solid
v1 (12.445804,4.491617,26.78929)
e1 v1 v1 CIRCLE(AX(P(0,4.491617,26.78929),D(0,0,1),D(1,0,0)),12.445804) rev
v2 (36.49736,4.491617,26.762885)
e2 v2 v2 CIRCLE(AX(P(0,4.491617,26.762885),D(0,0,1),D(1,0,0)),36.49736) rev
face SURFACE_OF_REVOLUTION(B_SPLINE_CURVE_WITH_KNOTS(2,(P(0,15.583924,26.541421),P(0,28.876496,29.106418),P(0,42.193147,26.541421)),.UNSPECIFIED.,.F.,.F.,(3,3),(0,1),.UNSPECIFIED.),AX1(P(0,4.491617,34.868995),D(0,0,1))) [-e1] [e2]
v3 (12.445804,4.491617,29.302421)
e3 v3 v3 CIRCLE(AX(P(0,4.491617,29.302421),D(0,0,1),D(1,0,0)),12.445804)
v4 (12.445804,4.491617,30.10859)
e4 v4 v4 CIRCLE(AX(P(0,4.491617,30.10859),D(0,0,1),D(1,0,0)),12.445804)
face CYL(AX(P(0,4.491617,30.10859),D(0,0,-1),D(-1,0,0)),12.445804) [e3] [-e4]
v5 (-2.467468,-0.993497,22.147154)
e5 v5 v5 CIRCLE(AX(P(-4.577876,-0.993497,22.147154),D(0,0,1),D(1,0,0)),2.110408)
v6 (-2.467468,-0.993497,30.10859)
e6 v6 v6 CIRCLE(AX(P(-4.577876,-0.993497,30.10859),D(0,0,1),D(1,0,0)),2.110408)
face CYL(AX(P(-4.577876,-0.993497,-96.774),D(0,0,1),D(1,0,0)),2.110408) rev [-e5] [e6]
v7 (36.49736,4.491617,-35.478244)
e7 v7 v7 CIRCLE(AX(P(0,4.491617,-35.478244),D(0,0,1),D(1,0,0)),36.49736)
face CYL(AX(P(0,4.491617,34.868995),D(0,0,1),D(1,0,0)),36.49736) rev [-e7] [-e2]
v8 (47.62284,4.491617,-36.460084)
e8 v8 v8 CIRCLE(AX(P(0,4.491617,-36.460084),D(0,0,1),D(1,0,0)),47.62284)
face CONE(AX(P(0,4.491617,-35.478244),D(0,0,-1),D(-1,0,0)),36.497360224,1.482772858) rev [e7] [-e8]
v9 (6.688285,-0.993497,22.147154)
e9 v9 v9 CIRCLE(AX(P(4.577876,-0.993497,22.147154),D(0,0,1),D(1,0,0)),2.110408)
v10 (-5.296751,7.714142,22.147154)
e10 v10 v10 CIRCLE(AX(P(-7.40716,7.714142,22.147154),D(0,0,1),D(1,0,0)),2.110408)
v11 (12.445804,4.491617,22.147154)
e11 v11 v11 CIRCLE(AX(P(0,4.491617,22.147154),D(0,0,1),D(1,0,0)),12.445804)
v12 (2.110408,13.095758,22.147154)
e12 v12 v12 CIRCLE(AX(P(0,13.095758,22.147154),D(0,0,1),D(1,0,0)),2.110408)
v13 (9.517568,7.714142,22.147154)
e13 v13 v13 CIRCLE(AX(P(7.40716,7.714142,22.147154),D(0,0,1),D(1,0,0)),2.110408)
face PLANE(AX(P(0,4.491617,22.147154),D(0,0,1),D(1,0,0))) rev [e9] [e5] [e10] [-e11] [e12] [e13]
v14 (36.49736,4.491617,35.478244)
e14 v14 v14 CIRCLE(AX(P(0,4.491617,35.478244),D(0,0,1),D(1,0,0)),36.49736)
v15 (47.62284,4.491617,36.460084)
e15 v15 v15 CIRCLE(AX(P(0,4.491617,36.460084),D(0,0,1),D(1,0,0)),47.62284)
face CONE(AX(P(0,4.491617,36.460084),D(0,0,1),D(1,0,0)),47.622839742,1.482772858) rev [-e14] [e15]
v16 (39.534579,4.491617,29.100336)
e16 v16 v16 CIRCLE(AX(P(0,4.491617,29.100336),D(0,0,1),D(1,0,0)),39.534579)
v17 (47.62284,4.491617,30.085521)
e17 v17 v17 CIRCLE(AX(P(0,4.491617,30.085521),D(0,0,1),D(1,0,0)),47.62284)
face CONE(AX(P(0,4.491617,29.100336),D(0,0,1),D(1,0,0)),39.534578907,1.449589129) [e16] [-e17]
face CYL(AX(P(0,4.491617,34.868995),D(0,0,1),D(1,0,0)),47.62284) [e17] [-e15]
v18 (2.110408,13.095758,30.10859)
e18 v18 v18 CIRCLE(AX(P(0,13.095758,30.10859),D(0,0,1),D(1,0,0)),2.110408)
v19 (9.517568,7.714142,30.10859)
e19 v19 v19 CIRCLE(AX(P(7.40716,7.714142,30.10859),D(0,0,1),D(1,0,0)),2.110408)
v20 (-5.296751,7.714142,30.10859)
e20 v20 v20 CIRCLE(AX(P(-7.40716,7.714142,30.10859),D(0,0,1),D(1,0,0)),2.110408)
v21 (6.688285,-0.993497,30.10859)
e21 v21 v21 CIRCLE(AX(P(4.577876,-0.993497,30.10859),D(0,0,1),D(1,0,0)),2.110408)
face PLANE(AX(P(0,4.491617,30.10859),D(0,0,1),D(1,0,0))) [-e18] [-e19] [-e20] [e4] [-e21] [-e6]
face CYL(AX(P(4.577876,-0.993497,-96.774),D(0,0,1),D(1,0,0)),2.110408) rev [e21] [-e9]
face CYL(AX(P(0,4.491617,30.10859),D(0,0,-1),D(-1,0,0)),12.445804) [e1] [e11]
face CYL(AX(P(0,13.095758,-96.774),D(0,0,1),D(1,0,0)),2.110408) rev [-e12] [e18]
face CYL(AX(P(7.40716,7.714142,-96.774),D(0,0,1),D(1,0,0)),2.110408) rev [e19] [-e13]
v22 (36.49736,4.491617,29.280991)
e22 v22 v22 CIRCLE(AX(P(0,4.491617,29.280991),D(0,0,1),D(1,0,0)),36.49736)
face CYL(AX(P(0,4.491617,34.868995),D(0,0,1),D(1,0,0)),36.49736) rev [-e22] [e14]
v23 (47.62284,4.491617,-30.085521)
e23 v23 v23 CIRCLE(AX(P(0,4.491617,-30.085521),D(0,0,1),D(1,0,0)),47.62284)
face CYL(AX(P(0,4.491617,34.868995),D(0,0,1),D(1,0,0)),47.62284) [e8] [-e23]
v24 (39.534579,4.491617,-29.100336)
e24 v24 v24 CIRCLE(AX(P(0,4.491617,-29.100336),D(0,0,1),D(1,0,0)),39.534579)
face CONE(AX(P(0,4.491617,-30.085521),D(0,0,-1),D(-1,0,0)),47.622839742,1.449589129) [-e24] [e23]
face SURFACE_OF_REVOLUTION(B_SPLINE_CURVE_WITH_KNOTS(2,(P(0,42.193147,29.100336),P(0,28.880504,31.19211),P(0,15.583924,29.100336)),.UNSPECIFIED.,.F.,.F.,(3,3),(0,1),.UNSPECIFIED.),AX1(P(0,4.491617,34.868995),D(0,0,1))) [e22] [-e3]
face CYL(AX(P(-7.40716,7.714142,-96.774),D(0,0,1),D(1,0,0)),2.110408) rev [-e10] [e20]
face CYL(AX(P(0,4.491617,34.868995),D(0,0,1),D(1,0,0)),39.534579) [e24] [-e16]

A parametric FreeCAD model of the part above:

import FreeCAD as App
import Part
import Sketcher
Q = App.Units.Quantity


def add_polygon(sketch, points):
    """Adds a closed chain of lines whose ends are joined by coincident constraints."""
    first, n = sketch.GeometryCount, len(points)
    for a, b in zip(points, points[1:] + points[:1]):
        sketch.addGeometry(Part.LineSegment(App.Vector(*a, 0), App.Vector(*b, 0)), False)
    for i in range(n):
        sketch.addConstraint(Sketcher.Constraint("Coincident", first + i, 2, first + (i + 1) % n, 1))

doc = App.newDocument("Part")
params = doc.addObject("Spreadsheet::Sheet", "Params")
for row, (alias, value) in enumerate([
    ("revolution_angle", "360 deg"),
    ("pad1_length", "7.961436 mm"),
    ("pocket1_length", "5.41 in"),
    ("revolution2_angle", "360 deg"),
], start=1):
    params.set(f"A{row}", alias)
    params.set(f"B{row}", "=" + value)
    params.setAlias(f"B{row}", alias)

body = doc.addObject("PartDesign::Body", "Body")

sketch1 = doc.addObject("Sketcher::SketchObject", "Sketch")
body.addObject(sketch1)
sketch1.AttachmentSupport = (doc.YZ_Plane, [""])
sketch1.MapMode = "FlatFace"
add_polygon(sketch1, [(44, -29), (44, 29), (52, 30), (52, 36), (41, 35), (41, -35), (52, -36), (52, -30)])
sketch1.addGeometry(Part.LineSegment(App.Vector(4, 36, 0), App.Vector(4, -36, 0)), True)
sketch1.addConstraint([
    Sketcher.Constraint("Vertical", 0),
    Sketcher.Constraint("Vertical", 2),
    Sketcher.Constraint("Vertical", 4),
    Sketcher.Constraint("Vertical", 6),
    Sketcher.Constraint("Vertical", 8),
    Sketcher.Constraint("Symmetric", 2, 2, 5, 2, -1),
    Sketcher.Constraint("Horizontal", 2, 2, 8, 1),
    Sketcher.Constraint("Horizontal", 5, 2, 8, 2),
    Sketcher.Constraint("Equal", 2, 6),
    Sketcher.Constraint("Equal", 3, 5),
    Sketcher.Constraint("Equal", 1, 7),
    Sketcher.Constraint("DistanceY", 8, 2, 8, 1, Q("72.920168 mm")),
    Sketcher.Constraint("Distance", 1, Q("8.14804 mm")),
    Sketcher.Constraint("Distance", 3, Q("11.16872 mm")),
    Sketcher.Constraint("DistanceY", 0, 1, 0, 2, Q("58.200673 mm")),
    Sketcher.Constraint("DistanceY", 2, 1, 2, 2, Q("6.374563 mm")),
    Sketcher.Constraint("DistanceY", 4, 2, 4, 1, Q("70.956487 mm")),
    Sketcher.Constraint("DistanceX", 8, 1, 3, 2, Q("36.49736 mm")),
    Sketcher.Constraint("DistanceX", -1, 1, 0, 2, Q("44.026196 mm")),
])
revolution = doc.addObject("PartDesign::Revolution", "Revolution")
body.addObject(revolution)
revolution.Profile = sketch1
revolution.ReferenceAxis = (sketch1, ["Axis0"])
revolution.setExpression("Angle", "Params.revolution_angle")
body2 = doc.addObject("PartDesign::Body", "Body001")

sketch2 = doc.addObject("Sketcher::SketchObject", "Sketch001")
body2.addObject(sketch2)
sketch2.AttachmentSupport = (doc.getObject("XY_Plane001"), [""])
sketch2.MapMode = "FlatFace"
sketch2.AttachmentOffset = App.Placement(App.Vector(0, 0, 22.147154), App.Rotation())
sketch2.addGeometry(Part.Circle(App.Vector(0, 4, 0), App.Vector(0, 0, 1), 12), False)
sketch2.addConstraint([
    Sketcher.Constraint("PointOnObject", 0, 3, -2),
    Sketcher.Constraint("Diameter", 0, Q("24.891607 mm")),
    Sketcher.Constraint("DistanceY", -1, 1, 0, 3, Q("4.491617 mm")),
])
pad1 = doc.addObject("PartDesign::Pad", "Pad")
body2.addObject(pad1)
pad1.Profile = sketch2
pad1.setExpression("Length", "Params.pad1_length")

sketch3 = doc.addObject("Sketcher::SketchObject", "Sketch002")
body2.addObject(sketch3)
sketch3.AttachmentSupport = (doc.getObject("XY_Plane001"), [""])
sketch3.MapMode = "FlatFace"
sketch3.AttachmentOffset = App.Placement(App.Vector(0, 0, 1.6 * 25.4), App.Rotation())
sketch3.addGeometry([
    Part.Circle(App.Vector(0, 13.1, 0), App.Vector(0, 0, 1), 2.1),
    Part.Circle(App.Vector(7.4, 7.7, 0), App.Vector(0, 0, 1), 2.1),
    Part.Circle(App.Vector(4.6, -1, 0), App.Vector(0, 0, 1), 2.1),
    Part.Circle(App.Vector(-4.6, -1, 0), App.Vector(0, 0, 1), 2.1),
    Part.Circle(App.Vector(-7.4, 7.7, 0), App.Vector(0, 0, 1), 2.1),
], False)
sketch3.addConstraint([
    Sketcher.Constraint("Equal", 0, 1),
    Sketcher.Constraint("Equal", 1, 2),
    Sketcher.Constraint("Equal", 2, 3),
    Sketcher.Constraint("Equal", 3, 4),
    Sketcher.Constraint("Symmetric", 2, 3, 3, 3, -2),
    Sketcher.Constraint("Symmetric", 1, 3, 4, 3, -2),
    Sketcher.Constraint("PointOnObject", 0, 3, -2),
    Sketcher.Constraint("Diameter", 0, Q("4.220817 mm")),
    Sketcher.Constraint("DistanceY", -1, 1, 0, 3, Q("13.095758 mm")),
    Sketcher.Constraint("DistanceX", -1, 1, 1, 3, Q("7.40716 mm")),
    Sketcher.Constraint("DistanceY", -1, 1, 1, 3, Q("7.714142 mm")),
    Sketcher.Constraint("DistanceY", 2, 3, 1, 3, Q("8.707638 mm")),
    Sketcher.Constraint("DistanceX", -1, 1, 2, 3, Q("4.577876 mm")),
])
pocket1 = doc.addObject("PartDesign::Pocket", "Pocket")
body2.addObject(pocket1)
pocket1.Profile = sketch3
pocket1.setExpression("Length", "Params.pocket1_length")
body.AllowCompound = True
doc.recompute()

boolean = doc.addObject("PartDesign::Boolean", "Boolean")
body.addObject(boolean)
boolean.Type = "Fuse"
boolean.addObjects([body2])

sketch4 = doc.addObject("Sketcher::SketchObject", "Sketch003")
body.addObject(sketch4)
sketch4.AttachmentSupport = (doc.YZ_Plane, [""])
sketch4.MapMode = "FlatFace"
sketch4.addGeometry([
    Part.LineSegment(App.Vector(42.193147, 26.541421, 0), App.Vector(42.193147, 29.100336, 0)),
    Part.BSplineCurve([App.Vector(42.193147, 29.100336, 0), App.Vector(28.880504, 31.19211, 0), App.Vector(15.583924, 29.100336, 0)], [3, 3], [0, 1], False, 2, [1, 1, 1], False),
    Part.LineSegment(App.Vector(15.583924, 29.100336, 0), App.Vector(15.583924, 26.541421, 0)),
    Part.BSplineCurve([App.Vector(42.193147, 26.541421, 0), App.Vector(28.876496, 29.106418, 0), App.Vector(15.583924, 26.541421, 0)], [3, 3], [0, 1], False, 2, [1, 1, 1], False),
], False)
sketch4.addGeometry(Part.LineSegment(App.Vector(4.491617, 29.100336, 0), App.Vector(4.491617, 26.541421, 0)), True)
sketch4.addConstraint([
    Sketcher.Constraint("Block", 1),
    Sketcher.Constraint("Block", 3),
    Sketcher.Constraint("Coincident", 0, 2, 1, 1),
    Sketcher.Constraint("Coincident", 1, 2, 2, 1),
    Sketcher.Constraint("Coincident", 2, 2, 3, 2),
    Sketcher.Constraint("Coincident", 3, 1, 0, 1),
    Sketcher.Constraint("Vertical", 4),
    Sketcher.Constraint("Horizontal", 0, 2, 4, 1),
    Sketcher.Constraint("Horizontal", 2, 2, 4, 2),
    Sketcher.Constraint("DistanceX", 4, 1, 0, 2, Q("37.70153 mm")),
])
revolution2 = doc.addObject("PartDesign::Revolution", "Revolution001")
body.addObject(revolution2)
revolution2.Profile = sketch4
revolution2.ReferenceAxis = (sketch4, ["Axis0"])
revolution2.setExpression("Angle", "Params.revolution2_angle")

doc.recompute()
